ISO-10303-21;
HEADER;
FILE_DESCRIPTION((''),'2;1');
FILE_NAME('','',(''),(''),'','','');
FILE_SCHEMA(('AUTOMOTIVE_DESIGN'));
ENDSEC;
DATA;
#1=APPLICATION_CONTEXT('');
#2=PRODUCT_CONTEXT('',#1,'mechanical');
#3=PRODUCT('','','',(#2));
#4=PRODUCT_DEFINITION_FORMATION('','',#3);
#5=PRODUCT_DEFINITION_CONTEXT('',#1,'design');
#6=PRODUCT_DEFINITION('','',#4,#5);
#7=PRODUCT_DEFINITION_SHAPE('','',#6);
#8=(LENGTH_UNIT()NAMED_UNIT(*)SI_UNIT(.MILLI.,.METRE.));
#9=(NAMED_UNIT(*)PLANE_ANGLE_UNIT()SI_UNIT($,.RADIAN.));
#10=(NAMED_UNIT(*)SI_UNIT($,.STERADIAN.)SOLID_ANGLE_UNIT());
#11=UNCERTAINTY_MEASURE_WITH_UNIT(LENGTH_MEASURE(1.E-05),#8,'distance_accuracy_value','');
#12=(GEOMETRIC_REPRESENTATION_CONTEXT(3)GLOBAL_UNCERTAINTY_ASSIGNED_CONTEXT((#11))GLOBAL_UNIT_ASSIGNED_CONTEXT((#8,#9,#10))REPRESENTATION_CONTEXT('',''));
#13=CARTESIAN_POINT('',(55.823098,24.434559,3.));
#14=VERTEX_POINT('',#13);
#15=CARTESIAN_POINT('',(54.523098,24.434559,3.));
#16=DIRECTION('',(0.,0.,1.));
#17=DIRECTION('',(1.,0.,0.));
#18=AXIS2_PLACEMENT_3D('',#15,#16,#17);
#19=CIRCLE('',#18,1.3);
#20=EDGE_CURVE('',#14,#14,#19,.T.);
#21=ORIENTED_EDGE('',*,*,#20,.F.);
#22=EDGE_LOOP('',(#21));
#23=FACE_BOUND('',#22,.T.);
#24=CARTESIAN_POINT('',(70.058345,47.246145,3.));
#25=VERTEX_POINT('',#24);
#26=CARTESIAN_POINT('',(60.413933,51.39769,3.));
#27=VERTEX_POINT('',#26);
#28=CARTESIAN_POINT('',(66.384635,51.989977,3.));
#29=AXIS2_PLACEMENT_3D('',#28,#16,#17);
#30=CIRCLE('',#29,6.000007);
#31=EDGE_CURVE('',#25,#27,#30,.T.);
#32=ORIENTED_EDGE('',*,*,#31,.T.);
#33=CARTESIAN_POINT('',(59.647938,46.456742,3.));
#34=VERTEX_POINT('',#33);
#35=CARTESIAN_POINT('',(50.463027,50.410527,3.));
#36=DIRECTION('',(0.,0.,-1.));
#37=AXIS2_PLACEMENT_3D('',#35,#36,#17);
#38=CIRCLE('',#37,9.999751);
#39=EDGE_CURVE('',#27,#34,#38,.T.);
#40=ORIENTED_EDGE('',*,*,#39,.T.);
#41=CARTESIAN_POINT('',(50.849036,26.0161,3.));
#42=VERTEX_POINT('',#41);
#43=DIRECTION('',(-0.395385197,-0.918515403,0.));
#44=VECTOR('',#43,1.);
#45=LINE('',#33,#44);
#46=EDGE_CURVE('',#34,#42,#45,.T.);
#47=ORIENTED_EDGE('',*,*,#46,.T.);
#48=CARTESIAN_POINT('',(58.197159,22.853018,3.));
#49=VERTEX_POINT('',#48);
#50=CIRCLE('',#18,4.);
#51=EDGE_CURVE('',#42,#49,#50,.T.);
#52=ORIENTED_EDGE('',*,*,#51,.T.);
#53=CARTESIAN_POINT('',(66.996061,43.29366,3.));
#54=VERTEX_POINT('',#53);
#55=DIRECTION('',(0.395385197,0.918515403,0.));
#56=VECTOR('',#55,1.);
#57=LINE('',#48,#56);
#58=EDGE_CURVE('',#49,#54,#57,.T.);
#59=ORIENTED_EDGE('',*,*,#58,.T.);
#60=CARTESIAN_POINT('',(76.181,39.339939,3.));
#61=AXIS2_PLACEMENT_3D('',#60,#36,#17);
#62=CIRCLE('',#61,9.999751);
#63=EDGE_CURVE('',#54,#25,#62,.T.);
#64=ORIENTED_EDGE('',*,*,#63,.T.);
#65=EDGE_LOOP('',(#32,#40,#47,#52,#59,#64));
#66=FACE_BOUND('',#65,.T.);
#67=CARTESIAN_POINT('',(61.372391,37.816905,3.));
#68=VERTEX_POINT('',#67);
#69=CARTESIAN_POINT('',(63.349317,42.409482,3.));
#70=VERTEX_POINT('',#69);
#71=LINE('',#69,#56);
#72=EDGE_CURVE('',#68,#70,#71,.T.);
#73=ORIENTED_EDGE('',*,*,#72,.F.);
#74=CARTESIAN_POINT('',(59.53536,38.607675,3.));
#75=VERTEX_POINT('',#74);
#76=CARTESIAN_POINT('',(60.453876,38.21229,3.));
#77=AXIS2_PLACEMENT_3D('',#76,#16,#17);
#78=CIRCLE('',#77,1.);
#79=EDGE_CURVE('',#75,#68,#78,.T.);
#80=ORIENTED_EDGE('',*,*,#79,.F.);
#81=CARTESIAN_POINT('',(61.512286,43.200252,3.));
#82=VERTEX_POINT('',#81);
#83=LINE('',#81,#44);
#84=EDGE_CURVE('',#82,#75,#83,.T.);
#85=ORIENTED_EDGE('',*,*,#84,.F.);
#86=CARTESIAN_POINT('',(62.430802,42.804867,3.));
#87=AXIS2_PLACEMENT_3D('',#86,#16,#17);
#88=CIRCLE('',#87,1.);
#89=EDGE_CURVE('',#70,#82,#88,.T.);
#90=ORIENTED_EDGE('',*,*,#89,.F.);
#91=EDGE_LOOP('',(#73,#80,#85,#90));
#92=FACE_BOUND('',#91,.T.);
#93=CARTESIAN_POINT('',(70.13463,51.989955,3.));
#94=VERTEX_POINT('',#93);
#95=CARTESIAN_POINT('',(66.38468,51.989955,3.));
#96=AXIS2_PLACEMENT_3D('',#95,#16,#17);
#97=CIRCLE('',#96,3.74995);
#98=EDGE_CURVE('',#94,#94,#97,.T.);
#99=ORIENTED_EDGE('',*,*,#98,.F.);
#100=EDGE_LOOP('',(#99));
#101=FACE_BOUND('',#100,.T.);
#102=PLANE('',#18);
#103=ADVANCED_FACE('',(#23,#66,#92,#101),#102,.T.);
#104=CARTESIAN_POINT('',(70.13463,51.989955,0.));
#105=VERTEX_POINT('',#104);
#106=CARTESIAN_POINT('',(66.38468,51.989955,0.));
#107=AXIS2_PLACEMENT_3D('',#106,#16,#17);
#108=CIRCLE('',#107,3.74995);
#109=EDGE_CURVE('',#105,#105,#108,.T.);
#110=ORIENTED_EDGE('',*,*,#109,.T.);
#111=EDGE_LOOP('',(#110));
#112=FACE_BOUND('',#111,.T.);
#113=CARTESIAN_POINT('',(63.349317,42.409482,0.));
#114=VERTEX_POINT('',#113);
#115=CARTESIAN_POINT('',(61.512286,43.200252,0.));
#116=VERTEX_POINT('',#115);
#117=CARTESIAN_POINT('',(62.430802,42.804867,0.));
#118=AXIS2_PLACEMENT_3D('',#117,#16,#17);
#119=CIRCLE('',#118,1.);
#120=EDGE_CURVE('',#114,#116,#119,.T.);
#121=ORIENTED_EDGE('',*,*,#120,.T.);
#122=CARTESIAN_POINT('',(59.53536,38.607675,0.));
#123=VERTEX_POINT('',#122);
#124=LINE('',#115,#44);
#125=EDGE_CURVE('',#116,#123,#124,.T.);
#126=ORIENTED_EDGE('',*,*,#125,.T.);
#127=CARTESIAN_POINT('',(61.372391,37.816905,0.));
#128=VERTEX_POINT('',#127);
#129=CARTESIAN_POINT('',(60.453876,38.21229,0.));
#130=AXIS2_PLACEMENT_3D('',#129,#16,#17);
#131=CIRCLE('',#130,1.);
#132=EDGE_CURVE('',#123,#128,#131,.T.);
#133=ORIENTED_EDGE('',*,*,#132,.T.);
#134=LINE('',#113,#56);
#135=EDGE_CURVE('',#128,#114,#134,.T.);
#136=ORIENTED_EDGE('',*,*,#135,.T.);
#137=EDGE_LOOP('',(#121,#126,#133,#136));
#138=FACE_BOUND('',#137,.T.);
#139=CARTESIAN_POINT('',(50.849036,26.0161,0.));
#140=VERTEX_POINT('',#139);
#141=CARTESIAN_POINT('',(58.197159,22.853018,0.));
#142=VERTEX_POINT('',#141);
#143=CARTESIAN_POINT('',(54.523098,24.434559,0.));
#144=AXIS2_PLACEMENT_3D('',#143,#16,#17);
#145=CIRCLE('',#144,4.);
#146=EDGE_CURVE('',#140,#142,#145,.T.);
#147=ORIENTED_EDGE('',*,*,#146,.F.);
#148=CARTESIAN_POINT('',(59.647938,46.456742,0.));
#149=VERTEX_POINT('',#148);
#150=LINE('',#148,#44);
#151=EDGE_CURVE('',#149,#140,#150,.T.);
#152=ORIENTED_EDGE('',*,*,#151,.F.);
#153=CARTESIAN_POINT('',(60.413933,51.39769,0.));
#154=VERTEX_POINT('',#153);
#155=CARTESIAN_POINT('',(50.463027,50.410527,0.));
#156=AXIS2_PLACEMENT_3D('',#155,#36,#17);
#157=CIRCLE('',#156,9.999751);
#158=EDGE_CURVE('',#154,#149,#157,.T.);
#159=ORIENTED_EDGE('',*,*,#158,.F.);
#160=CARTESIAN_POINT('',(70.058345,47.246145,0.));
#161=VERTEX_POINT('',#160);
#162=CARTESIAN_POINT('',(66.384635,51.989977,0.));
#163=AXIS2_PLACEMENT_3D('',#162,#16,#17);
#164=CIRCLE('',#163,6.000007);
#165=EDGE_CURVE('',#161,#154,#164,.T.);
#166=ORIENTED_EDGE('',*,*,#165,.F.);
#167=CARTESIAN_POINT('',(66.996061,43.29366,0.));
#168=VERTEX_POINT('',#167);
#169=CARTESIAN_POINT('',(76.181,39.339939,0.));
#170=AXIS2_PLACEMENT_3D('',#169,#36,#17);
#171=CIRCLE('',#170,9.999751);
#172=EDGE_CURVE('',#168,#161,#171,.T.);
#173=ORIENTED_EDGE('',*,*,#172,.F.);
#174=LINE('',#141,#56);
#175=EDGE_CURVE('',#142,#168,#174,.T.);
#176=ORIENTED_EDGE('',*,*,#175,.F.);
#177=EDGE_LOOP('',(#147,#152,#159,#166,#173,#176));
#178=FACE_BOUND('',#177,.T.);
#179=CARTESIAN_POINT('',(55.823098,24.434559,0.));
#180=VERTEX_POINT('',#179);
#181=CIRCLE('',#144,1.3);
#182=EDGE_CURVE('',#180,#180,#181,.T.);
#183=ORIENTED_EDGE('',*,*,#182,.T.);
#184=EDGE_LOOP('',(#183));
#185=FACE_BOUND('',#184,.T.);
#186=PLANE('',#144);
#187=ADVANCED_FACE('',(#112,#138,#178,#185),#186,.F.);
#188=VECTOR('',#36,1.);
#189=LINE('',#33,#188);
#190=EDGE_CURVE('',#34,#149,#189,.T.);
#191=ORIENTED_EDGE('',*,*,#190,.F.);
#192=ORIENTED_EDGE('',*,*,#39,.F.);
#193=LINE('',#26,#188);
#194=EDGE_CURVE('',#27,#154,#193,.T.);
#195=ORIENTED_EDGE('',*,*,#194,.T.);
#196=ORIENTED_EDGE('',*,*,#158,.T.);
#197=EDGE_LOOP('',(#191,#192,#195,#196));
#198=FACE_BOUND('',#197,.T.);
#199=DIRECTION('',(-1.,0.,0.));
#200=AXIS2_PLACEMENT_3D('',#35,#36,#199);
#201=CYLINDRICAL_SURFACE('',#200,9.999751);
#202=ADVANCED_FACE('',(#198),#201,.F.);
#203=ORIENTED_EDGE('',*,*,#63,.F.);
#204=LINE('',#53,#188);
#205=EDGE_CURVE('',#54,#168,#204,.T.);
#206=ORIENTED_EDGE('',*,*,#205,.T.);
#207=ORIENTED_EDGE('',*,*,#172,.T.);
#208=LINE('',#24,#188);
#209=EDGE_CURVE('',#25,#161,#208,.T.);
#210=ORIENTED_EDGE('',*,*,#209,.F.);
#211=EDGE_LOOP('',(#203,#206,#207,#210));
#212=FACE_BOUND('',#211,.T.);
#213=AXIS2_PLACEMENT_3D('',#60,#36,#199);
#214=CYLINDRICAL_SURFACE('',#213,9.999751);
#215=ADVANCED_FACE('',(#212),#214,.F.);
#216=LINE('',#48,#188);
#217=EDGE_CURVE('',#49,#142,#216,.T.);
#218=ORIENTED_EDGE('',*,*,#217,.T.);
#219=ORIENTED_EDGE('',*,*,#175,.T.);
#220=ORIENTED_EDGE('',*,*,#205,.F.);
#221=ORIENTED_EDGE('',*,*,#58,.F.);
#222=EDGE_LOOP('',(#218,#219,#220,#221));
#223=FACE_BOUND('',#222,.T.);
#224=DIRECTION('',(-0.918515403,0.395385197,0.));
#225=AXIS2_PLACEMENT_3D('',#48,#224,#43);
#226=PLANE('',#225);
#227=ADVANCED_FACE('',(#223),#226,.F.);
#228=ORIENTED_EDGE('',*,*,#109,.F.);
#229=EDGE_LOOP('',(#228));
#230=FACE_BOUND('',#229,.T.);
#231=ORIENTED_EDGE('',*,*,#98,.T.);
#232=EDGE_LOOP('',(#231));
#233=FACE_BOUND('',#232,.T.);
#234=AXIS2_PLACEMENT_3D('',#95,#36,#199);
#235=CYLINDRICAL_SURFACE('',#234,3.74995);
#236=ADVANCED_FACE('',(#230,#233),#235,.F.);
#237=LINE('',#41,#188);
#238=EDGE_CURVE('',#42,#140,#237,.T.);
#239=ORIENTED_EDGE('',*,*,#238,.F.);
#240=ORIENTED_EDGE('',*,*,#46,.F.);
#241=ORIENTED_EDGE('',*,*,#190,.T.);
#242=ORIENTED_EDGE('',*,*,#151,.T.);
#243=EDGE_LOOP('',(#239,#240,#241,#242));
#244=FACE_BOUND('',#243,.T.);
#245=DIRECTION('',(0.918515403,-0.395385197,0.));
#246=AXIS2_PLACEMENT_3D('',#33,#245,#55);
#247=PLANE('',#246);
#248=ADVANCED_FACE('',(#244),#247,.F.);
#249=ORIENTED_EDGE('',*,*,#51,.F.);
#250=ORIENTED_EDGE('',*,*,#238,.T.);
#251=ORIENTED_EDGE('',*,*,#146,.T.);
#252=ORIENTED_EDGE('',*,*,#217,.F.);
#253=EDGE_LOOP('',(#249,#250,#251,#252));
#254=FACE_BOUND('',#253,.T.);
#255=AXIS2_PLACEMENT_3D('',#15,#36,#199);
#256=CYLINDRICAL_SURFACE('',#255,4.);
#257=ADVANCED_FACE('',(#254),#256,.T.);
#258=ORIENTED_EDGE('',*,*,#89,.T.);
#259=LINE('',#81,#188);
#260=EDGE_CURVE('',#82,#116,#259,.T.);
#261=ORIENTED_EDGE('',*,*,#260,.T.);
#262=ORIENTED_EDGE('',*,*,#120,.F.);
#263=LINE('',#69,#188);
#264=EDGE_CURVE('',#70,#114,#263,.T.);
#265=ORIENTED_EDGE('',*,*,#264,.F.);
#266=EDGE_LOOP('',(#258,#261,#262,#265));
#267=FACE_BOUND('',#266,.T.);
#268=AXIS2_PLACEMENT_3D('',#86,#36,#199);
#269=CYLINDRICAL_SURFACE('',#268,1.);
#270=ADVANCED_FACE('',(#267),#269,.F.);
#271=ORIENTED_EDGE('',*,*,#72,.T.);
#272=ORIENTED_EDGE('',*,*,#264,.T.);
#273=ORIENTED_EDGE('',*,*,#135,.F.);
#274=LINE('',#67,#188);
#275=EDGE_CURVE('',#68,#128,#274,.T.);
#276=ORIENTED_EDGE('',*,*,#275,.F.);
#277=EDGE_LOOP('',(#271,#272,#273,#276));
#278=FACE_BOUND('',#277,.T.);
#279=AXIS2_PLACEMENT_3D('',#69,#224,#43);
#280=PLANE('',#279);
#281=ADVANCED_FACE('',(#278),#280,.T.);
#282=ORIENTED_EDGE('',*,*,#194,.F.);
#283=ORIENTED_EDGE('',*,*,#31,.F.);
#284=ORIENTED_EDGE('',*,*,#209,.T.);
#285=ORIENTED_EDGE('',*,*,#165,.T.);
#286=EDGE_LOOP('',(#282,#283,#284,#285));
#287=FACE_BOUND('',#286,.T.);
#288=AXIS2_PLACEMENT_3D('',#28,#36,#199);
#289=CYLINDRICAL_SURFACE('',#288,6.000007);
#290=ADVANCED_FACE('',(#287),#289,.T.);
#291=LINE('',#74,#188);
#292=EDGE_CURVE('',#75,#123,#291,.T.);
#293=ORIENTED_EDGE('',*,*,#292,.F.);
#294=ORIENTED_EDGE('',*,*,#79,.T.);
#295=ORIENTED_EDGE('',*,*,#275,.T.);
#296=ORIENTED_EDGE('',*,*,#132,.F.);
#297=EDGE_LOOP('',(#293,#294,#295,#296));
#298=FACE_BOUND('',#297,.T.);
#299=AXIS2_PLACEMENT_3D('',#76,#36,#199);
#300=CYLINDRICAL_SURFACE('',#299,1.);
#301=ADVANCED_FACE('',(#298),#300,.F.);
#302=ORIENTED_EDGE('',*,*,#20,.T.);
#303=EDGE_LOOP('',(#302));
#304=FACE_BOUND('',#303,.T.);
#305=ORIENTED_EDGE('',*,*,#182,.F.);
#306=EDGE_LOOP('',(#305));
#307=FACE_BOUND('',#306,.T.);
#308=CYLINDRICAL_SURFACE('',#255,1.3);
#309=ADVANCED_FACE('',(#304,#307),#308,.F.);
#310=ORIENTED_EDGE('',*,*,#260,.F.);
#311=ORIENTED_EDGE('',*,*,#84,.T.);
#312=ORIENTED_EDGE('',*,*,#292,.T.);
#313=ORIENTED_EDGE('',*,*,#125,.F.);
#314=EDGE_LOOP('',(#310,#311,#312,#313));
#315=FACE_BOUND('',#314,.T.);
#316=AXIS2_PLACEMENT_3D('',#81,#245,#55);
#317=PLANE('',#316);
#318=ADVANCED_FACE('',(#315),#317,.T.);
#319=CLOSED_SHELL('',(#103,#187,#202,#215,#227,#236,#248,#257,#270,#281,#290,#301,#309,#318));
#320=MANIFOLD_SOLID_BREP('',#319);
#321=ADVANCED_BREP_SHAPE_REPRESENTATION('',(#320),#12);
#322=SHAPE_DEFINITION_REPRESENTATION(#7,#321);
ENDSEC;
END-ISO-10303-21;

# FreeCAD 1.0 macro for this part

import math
import FreeCAD as App
import Part
import Sketcher
from FreeCAD import Vector
Q = App.Units.Quantity

doc = App.newDocument("Part")
params = doc.addObject("Spreadsheet::Sheet", "Params")
for row, (alias, value) in enumerate([
    ("sketch1_radius", "4 mm"),
    ("sketch1_radius2", "1 mm"),
    ("sketch1_diameter", "2.6 mm"),
    ("sketch1_length", "5 mm"),
    ("pad1_length", "3 mm"),
], start=1):
    params.set(f"A{row}", alias)
    params.set(f"B{row}", "=" + value)
    params.setAlias(f"B{row}", alias)

body = doc.addObject("PartDesign::Body", "Body")

# Sketch on XY plane
sketch1 = body.newObject("Sketcher::SketchObject", "Sketch")
sketch1.AttachmentSupport = (doc.getObject("XY_Plane"), [""])
sketch1.MapMode = "FlatFace"
sketch1.addGeometry(Part.LineSegment(Vector(59.6, 46.5, 0), Vector(50.8, 26, 0)), False)
sketch1.addGeometry(Part.ArcOfCircle(Part.Circle(Vector(54.5, 24.4, 0), Vector(0, 0, 1), 4), math.radians(157), math.radians(337)), False)
sketch1.addGeometry(Part.LineSegment(Vector(58.2, 22.9, 0), Vector(67, 43.3, 0)), False)
sketch1.addGeometry(Part.ArcOfCircle(Part.Circle(Vector(76.2, 39.3, 0), Vector(0, 0, 1), 10), math.radians(128), math.radians(157)), False)
sketch1.addGeometry(Part.ArcOfCircle(Part.Circle(Vector(66.4, 52, 0), Vector(0, 0, 1), 6), math.radians(-52), math.radians(186)), False)
sketch1.addGeometry(Part.ArcOfCircle(Part.Circle(Vector(50.5, 50.4, 0), Vector(0, 0, 1), 10), math.radians(-23), math.radians(6)), False)
sketch1.addGeometry(Part.Circle(Vector(54.5, 24.4, 0), Vector(0, 0, 1), 1.3), False)
sketch1.addGeometry(Part.ArcOfCircle(Part.Circle(Vector(62.4, 42.8, 0), Vector(0, 0, 1), 1), math.radians(-23), math.radians(157)), False)
sketch1.addGeometry(Part.LineSegment(Vector(63.3, 42.4, 0), Vector(61.4, 37.8, 0)), False)
sketch1.addGeometry(Part.ArcOfCircle(Part.Circle(Vector(60.5, 38.2, 0), Vector(0, 0, 1), 1), math.radians(157), math.radians(337)), False)
sketch1.addGeometry(Part.LineSegment(Vector(59.5, 38.6, 0), Vector(61.5, 43.2, 0)), False)
sketch1.addGeometry(Part.Circle(Vector(66.4, 52, 0), Vector(0, 0, 1), 3.7), False)
sketch1.addConstraint(Sketcher.Constraint("Tangent", 0, 2, 1, 1))
sketch1.addConstraint(Sketcher.Constraint("Tangent", 1, 2, 2, 1))
sketch1.addConstraint(Sketcher.Constraint("Coincident", 2, 2, 3, 2))
sketch1.addConstraint(Sketcher.Constraint("Coincident", 3, 1, 4, 1))
sketch1.addConstraint(Sketcher.Constraint("Coincident", 4, 2, 5, 2))
sketch1.addConstraint(Sketcher.Constraint("Coincident", 5, 1, 0, 1))
sketch1.addConstraint(Sketcher.Constraint("Tangent", 7, 1, 8, 1))
sketch1.addConstraint(Sketcher.Constraint("Tangent", 8, 2, 9, 2))
sketch1.addConstraint(Sketcher.Constraint("Tangent", 9, 1, 10, 1))
sketch1.addConstraint(Sketcher.Constraint("Tangent", 10, 2, 7, 2))
sketch1.addConstraint(Sketcher.Constraint("Coincident", 6, 3, 1, 3))
sketch1.addConstraint(Sketcher.Constraint("Equal", 3, 5))
sketch1.addConstraint(Sketcher.Constraint("Equal", 7, 9))
sketch1.addConstraint(Sketcher.Constraint("Parallel", 0, 2))
sketch1.addConstraint(Sketcher.Constraint("Parallel", 2, 8))
sketch1.addConstraint(Sketcher.Constraint("Equal", 0, 2))
sketch1.addConstraint(Sketcher.Constraint("Radius", 1, Q("4 mm")))
sketch1.addConstraint(Sketcher.Constraint("Radius", 7, Q("1 mm")))
sketch1.addConstraint(Sketcher.Constraint("Diameter", 6, Q("2.6 mm")))
sketch1.addConstraint(Sketcher.Constraint("Distance", 8, Q("5 mm")))
sketch1.addConstraint(Sketcher.Constraint("Diameter", 11, Q("7.4999 mm")))
sketch1.addConstraint(Sketcher.Constraint("Angle", 0, Q("-113.29 deg")))
sketch1.addConstraint(Sketcher.Constraint("Radius", 3, Q("9.999751 mm")))
sketch1.addConstraint(Sketcher.Constraint("Distance", 0, Q("22.254 mm")))
sketch1.addConstraint(Sketcher.Constraint("DistanceX", -1, 1, 3, 3, Q("76.181 mm")))
sketch1.addConstraint(Sketcher.Constraint("Radius", 4, Q("6.000007 mm")))
sketch1.addConstraint(Sketcher.Constraint("DistanceX", -1, 1, 7, 3, Q("62.430802 mm")))
sketch1.addConstraint(Sketcher.Constraint("DistanceY", -1, 1, 0, 2, Q("26.0161 mm")))
sketch1.addConstraint(Sketcher.Constraint("DistanceX", 4, 2, 4, 3, Q("5.970702 mm")))
sketch1.addConstraint(Sketcher.Constraint("DistanceY", -1, 1, 3, 3, Q("39.339939 mm")))
sketch1.addConstraint(Sketcher.Constraint("DistanceY", -1, 1, 9, 3, Q("38.21229 mm")))
sketch1.addConstraint(Sketcher.Constraint("DistanceX", -1, 1, 11, 3, Q("66.38468 mm")))
sketch1.addConstraint(Sketcher.Constraint("DistanceY", -1, 1, 4, 2, Q("51.39769 mm")))
sketch1.addConstraint(Sketcher.Constraint("DistanceY", 7, 3, 11, 3, Q("9.185088 mm")))
sketch1.addConstraint(Sketcher.Constraint("DistanceY", 3, 1, 11, 3, Q("4.74381 mm")))
sketch1.setExpression("Constraints[16]", "Params.sketch1_radius")
sketch1.setExpression("Constraints[17]", "Params.sketch1_radius2")
sketch1.setExpression("Constraints[18]", "Params.sketch1_diameter")
sketch1.setExpression("Constraints[19]", "Params.sketch1_length")
pad1 = body.newObject("PartDesign::Pad", "Pad")
pad1.Profile = sketch1
pad1.setExpression("Length", "Params.pad1_length")

doc.recompute()
